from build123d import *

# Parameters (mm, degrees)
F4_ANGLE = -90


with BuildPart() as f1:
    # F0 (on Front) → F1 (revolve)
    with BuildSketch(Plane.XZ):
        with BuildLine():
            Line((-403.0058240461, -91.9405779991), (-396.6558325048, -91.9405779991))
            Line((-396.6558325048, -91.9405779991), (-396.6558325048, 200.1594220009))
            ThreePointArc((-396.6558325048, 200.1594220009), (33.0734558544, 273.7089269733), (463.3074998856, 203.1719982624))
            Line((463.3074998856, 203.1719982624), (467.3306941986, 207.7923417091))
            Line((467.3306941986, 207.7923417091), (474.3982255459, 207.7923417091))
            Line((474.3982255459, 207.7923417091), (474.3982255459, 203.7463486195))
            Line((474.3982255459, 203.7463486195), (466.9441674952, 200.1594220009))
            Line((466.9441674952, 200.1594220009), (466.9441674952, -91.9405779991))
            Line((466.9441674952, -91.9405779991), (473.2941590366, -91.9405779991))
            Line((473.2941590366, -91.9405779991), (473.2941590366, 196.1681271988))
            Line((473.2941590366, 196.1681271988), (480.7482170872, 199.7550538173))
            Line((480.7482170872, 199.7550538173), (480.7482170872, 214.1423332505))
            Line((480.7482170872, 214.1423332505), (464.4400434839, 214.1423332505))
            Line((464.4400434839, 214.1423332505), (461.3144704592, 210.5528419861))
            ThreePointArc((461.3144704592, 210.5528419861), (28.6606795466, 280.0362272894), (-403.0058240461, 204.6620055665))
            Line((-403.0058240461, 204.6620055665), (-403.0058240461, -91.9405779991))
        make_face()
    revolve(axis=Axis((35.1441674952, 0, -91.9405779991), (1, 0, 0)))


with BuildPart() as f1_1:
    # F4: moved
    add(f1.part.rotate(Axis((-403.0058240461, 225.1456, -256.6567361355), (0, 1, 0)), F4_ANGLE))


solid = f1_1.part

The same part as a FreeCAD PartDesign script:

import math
import FreeCAD as App
import Part
import Sketcher

V = App.Vector
Q = App.Units.Quantity

doc = App.newDocument("Part")
params = doc.addObject("Spreadsheet::Sheet", "Params")
for row, (alias, value) in enumerate([
    ("sketch1_height", "11.5 in"),
    ("revolution_angle", "360 deg"),
], start=1):
    params.set(f"A{row}", alias)
    params.set(f"B{row}", "=" + value)
    params.setAlias(f"B{row}", alias)

body = doc.addObject("PartDesign::Body", "Body")

sketch1 = body.newObject("Sketcher::SketchObject", "Sketch")
sketch1.AttachmentSupport = (doc.getObject("XZ_Plane"), [""])
sketch1.MapMode = "FlatFace"
sketch1.addGeometry([
    Part.LineSegment(V(-403.005824, -91.940578, 0), V(-396.655833, -91.940578, 0)),
    Part.LineSegment(V(-396.655833, -91.940578, 0), V(-396.655833, 200.159422, 0)),
    Part.ArcOfCircle(Part.Circle(V(37.694699, -1045.460779, 0), V(0, 0, 1), 1319.1778), math.radians(71.177652), math.radians(109.223777)),
    Part.LineSegment(V(463.3075, 203.171998, 0), V(467.330694, 207.792342, 0)),
    Part.LineSegment(V(467.330694, 207.792342, 0), V(474.398226, 207.792342, 0)),
    Part.LineSegment(V(474.398226, 207.792342, 0), V(474.398226, 203.746349, 0)),
    Part.LineSegment(V(474.398226, 203.746349, 0), V(466.944167, 200.159422, 0)),
    Part.LineSegment(V(466.944167, 200.159422, 0), V(466.944167, -91.940578, 0)),
    Part.LineSegment(V(466.944167, -91.940578, 0), V(473.294159, -91.940578, 0)),
    Part.LineSegment(V(473.294159, -91.940578, 0), V(473.294159, 196.168127, 0)),
    Part.LineSegment(V(473.294159, 196.168127, 0), V(480.748217, 199.755054, 0)),
    Part.LineSegment(V(480.748217, 199.755054, 0), V(480.748217, 214.142333, 0)),
    Part.LineSegment(V(480.748217, 214.142333, 0), V(464.440043, 214.142333, 0)),
    Part.LineSegment(V(464.440043, 214.142333, 0), V(461.31447, 210.552842, 0)),
    Part.ArcOfCircle(Part.Circle(V(37.694699, -1045.460779, 0), V(0, 0, 1), 1325.527792), math.radians(71.362126), math.radians(109.418868)),
    Part.LineSegment(V(-403.005824, 204.662006, 0), V(-403.005824, -91.940578, 0)),
], False)
sketch1.addGeometry(Part.LineSegment(V(-403.005824, -91.940578, 0), V(480.748217, -91.940578, 0)), True)
sketch1.addConstraint([
    Sketcher.Constraint("Coincident", 0, 2, 1, 1),
    Sketcher.Constraint("Coincident", 1, 2, 2, 2),
    Sketcher.Constraint("Coincident", 2, 1, 3, 1),
    Sketcher.Constraint("Coincident", 3, 2, 4, 1),
    Sketcher.Constraint("Coincident", 4, 2, 5, 1),
    Sketcher.Constraint("Coincident", 5, 2, 6, 1),
    Sketcher.Constraint("Coincident", 6, 2, 7, 1),
    Sketcher.Constraint("Coincident", 7, 2, 8, 1),
    Sketcher.Constraint("Coincident", 8, 2, 9, 1),
    Sketcher.Constraint("Coincident", 9, 2, 10, 1),
    Sketcher.Constraint("Coincident", 10, 2, 11, 1),
    Sketcher.Constraint("Coincident", 11, 2, 12, 1),
    Sketcher.Constraint("Coincident", 12, 2, 13, 1),
    Sketcher.Constraint("Coincident", 13, 2, 14, 1),
    Sketcher.Constraint("Coincident", 14, 2, 15, 1),
    Sketcher.Constraint("Coincident", 15, 2, 0, 1),
    Sketcher.Constraint("Horizontal", 0),
    Sketcher.Constraint("Vertical", 1),
    Sketcher.Constraint("Horizontal", 4),
    Sketcher.Constraint("Vertical", 5),
    Sketcher.Constraint("Vertical", 7),
    Sketcher.Constraint("Horizontal", 8),
    Sketcher.Constraint("Vertical", 9),
    Sketcher.Constraint("Vertical", 11),
    Sketcher.Constraint("Horizontal", 12),
    Sketcher.Constraint("Vertical", 15),
    Sketcher.Constraint("Horizontal", 16),
    Sketcher.Constraint("Coincident", 14, 3, 2, 3),
    Sketcher.Constraint("Coincident", 16, 1, 15, 2),
    Sketcher.Constraint("Parallel", 6, 10),
    Sketcher.Constraint("Parallel", 3, 13),
    Sketcher.Constraint("Horizontal", 1, 2, 6, 2),
    Sketcher.Constraint("Horizontal", 0, 2, 7, 2),
    Sketcher.Constraint("Vertical", 11, 2, 16, 2),
    Sketcher.Constraint("Equal", 0, 8),
    Sketcher.Constraint("Equal", 6, 10),
    Sketcher.Constraint("DistanceY", 1, 1, 1, 2, Q("11.5 in")),
    Sketcher.Constraint("DistanceX", 1, 2, 6, 2, Q("34 in")),
    Sketcher.Constraint("Radius", 2, Q("1319.1778 mm")),
    Sketcher.Constraint("Radius", 14, Q("1325.527792 mm")),
    Sketcher.Constraint("DistanceX", 0, 1, 0, 2, Q("6.349992 mm")),
    Sketcher.Constraint("DistanceX", 4, 1, 4, 2, Q("7.067531 mm")),
    Sketcher.Constraint("DistanceX", 16, 1, 16, 2, Q("883.754041 mm")),
    Sketcher.Constraint("DistanceY", 11, 1, 11, 2, Q("14.387279 mm")),
    Sketcher.Constraint("DistanceX", -1, 1, 2, 3, Q("37.694699 mm")),
    Sketcher.Constraint("DistanceY", 2, 3, 0, 2, Q("953.520201 mm")),
    Sketcher.Constraint("DistanceY", 3, 2, 13, 2, Q("2.7605 mm")),
    Sketcher.Constraint("DistanceX", 12, 2, 12, 1, Q("16.308174 mm")),
    Sketcher.Constraint("DistanceY", 5, 2, 5, 1, Q("4.045993 mm")),
    Sketcher.Constraint("DistanceY", 9, 1, 9, 2, Q("288.108705 mm")),
    Sketcher.Constraint("DistanceY", 2, 3, -1, 1, Q("1045.460779 mm")),
    Sketcher.Constraint("DistanceY", -1, 1, 3, 2, Q("207.792342 mm")),
])
sketch1.setExpression("Constraints[36]", "Params.sketch1_height")
revolution = body.newObject("PartDesign::Revolution", "Revolution")
revolution.Profile = sketch1
revolution.ReferenceAxis = (sketch1, ["Axis0"])
revolution.setExpression("Angle", "Params.revolution_angle")
body2 = doc.addObject("PartDesign::Body", "Body001")
doc.recompute()

body.Placement = App.Placement(V(-659.66256, 0, 146.349088), App.Rotation(V(0, 1, 0), 270))
boolean = body2.newObject("PartDesign::Boolean", "Boolean")
boolean.Type = "Fuse"
boolean.addObjects([body])

doc.recompute()
